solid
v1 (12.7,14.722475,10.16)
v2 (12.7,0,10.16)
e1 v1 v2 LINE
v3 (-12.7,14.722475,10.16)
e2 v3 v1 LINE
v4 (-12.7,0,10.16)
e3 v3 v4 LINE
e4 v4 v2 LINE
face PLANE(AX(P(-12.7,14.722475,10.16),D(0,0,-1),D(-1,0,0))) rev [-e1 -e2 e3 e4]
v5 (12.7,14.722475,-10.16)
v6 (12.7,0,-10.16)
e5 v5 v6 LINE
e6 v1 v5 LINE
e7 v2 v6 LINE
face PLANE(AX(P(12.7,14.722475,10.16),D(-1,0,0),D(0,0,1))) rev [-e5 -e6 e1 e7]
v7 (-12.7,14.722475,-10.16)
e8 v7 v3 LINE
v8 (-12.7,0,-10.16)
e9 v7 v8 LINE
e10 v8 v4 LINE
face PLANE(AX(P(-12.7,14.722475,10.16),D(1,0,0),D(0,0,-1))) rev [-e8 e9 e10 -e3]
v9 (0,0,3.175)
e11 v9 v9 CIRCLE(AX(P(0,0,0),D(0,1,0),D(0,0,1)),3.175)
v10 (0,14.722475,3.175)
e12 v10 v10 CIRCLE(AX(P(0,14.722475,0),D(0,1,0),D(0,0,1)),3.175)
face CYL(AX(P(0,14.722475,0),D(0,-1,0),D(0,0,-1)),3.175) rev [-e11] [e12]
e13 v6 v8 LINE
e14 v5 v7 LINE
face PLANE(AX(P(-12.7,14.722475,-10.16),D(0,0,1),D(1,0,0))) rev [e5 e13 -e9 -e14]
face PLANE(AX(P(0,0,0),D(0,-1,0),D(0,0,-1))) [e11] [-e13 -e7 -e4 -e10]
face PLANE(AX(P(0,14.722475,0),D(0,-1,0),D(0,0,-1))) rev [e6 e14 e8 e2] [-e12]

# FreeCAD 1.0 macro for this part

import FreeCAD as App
import Part
import Sketcher

V = App.Vector
Q = App.Units.Quantity


def add_polygon(sketch, points):
    """Adds a closed chain of lines whose ends are joined by coincident constraints."""
    first, n = sketch.GeometryCount, len(points)
    for a, b in zip(points, points[1:] + points[:1]):
        sketch.addGeometry(Part.LineSegment(App.Vector(*a, 0), App.Vector(*b, 0)), False)
    for i in range(n):
        sketch.addConstraint(Sketcher.Constraint("Coincident", first + i, 2, first + (i + 1) % n, 1))

doc = App.newDocument("Part")
params = doc.addObject("Spreadsheet::Sheet", "Params")
for row, (alias, value) in enumerate([
    ("sketch1_diameter", "0.25 in"),
    ("sketch1_width", "1 in"),
    ("sketch1_height", "0.8 in"),
    ("pad1_length", "14.722475 mm"),
], start=1):
    params.set(f"A{row}", alias)
    params.set(f"B{row}", "=" + value)
    params.setAlias(f"B{row}", alias)

body = doc.addObject("PartDesign::Body", "Body")

sketch1 = body.newObject("Sketcher::SketchObject", "Sketch")
sketch1.AttachmentSupport = (doc.getObject("XZ_Plane"), [""])
sketch1.MapMode = "FlatFace"
add_polygon(sketch1, [(-12.7, -10.2), (-12.7, 10.2), (12.7, 10.2), (12.7, -10.2)])
sketch1.addGeometry(Part.Circle(V(0, 0, 0), V(0, 0, 1), 3.2), False)
sketch1.addConstraint([
    Sketcher.Constraint("Vertical", 0),
    Sketcher.Constraint("Horizontal", 1),
    Sketcher.Constraint("Vertical", 2),
    Sketcher.Constraint("Horizontal", 3),
    Sketcher.Constraint("Coincident", 4, 3, -1, 1),
    Sketcher.Constraint("Symmetric", 0, 2, 2, 2, -1, 1),
    Sketcher.Constraint("Diameter", 4, Q("0.25 in")),
    Sketcher.Constraint("DistanceX", 1, 1, 1, 2, Q("1 in")),
    Sketcher.Constraint("DistanceY", 0, 1, 0, 2, Q("0.8 in")),
])
sketch1.setExpression("Constraints[10]", "Params.sketch1_diameter")
sketch1.setExpression("Constraints[11]", "Params.sketch1_width")
sketch1.setExpression("Constraints[12]", "Params.sketch1_height")
pad1 = body.newObject("PartDesign::Pad", "Pad")
pad1.Profile = sketch1
pad1.setExpression("Length", "Params.pad1_length")
pad1.Reversed = True

doc.recompute()
